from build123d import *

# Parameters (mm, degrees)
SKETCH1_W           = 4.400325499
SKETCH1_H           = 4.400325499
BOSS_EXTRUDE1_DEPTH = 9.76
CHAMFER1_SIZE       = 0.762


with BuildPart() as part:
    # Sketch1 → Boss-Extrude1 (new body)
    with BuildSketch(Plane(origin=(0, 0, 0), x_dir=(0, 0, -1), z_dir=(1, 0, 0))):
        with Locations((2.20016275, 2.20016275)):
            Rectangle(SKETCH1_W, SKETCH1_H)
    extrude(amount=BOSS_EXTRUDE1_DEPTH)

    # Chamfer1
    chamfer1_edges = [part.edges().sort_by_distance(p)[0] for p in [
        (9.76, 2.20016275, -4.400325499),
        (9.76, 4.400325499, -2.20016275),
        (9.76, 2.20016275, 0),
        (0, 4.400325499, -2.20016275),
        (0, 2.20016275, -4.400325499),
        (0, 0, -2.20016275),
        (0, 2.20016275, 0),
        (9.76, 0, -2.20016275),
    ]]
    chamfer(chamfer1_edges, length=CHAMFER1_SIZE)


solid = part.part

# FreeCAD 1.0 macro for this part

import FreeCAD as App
import Part
import Sketcher
Q = App.Units.Quantity


def edges_at(feature, points):
    """Names of the edges that pass closest to the given points."""
    edges = feature.Shape.Edges
    near = lambda p: min(range(len(edges)), key=lambda i: edges[i].distToShape(Part.Vertex(*p))[0])
    return sorted({f"Edge{near(p) + 1}" for p in points})

doc = App.newDocument("Part")
body = doc.addObject("PartDesign::Body", "Body")

# Sketch on YZ plane
sketch1 = body.newObject("Sketcher::SketchObject", "Sketch")
sketch1.AttachmentSupport = (doc.getObject("YZ_Plane"), [""])
sketch1.MapMode = "FlatFace"
sketch1.addGeometry(Part.LineSegment(App.Vector(4.4, 0, 0), App.Vector(0, 0, 0)), False)
sketch1.addGeometry(Part.LineSegment(App.Vector(0, 0, 0), App.Vector(0, -4.4, 0)), False)
sketch1.addGeometry(Part.LineSegment(App.Vector(0, -4.4, 0), App.Vector(4.4, -4.4, 0)), False)
sketch1.addGeometry(Part.LineSegment(App.Vector(4.4, -4.4, 0), App.Vector(4.4, 0, 0)), False)
sketch1.addConstraint(Sketcher.Constraint("Coincident", 0, 2, 1, 1))
sketch1.addConstraint(Sketcher.Constraint("Coincident", 1, 2, 2, 1))
sketch1.addConstraint(Sketcher.Constraint("Coincident", 2, 2, 3, 1))
sketch1.addConstraint(Sketcher.Constraint("Coincident", 3, 2, 0, 1))
sketch1.addConstraint(Sketcher.Constraint("Horizontal", 0))
sketch1.addConstraint(Sketcher.Constraint("Vertical", 1))
sketch1.addConstraint(Sketcher.Constraint("Horizontal", 2))
sketch1.addConstraint(Sketcher.Constraint("Vertical", 3))
sketch1.addConstraint(Sketcher.Constraint("Coincident", 0, 2, -1, 1))
sketch1.addConstraint(Sketcher.Constraint("Equal", 2, 1))
sketch1.addConstraint(Sketcher.Constraint("DistanceX", 0, 2, 0, 1, 4.400325))
pad1 = body.newObject("PartDesign::Pad", "Pad")
pad1.Profile = sketch1
pad1.Length = 9.76
doc.recompute()

chamfer = body.newObject("PartDesign::Chamfer", "Chamfer")
chamfer.Base = (pad1, edges_at(pad1, [
    (9.76, 2.2, -4.4),
    (9.76, 4.4, -2.2),
    (9.76, 2.2, 0),
    (0, 4.4, -2.2),
    (0, 2.2, -4.4),
    (0, 0, -2.2),
    (0, 2.2, 0),
    (9.76, 0, -2.2),
]))
chamfer.Size = Q("0.03 in")

doc.recompute()
